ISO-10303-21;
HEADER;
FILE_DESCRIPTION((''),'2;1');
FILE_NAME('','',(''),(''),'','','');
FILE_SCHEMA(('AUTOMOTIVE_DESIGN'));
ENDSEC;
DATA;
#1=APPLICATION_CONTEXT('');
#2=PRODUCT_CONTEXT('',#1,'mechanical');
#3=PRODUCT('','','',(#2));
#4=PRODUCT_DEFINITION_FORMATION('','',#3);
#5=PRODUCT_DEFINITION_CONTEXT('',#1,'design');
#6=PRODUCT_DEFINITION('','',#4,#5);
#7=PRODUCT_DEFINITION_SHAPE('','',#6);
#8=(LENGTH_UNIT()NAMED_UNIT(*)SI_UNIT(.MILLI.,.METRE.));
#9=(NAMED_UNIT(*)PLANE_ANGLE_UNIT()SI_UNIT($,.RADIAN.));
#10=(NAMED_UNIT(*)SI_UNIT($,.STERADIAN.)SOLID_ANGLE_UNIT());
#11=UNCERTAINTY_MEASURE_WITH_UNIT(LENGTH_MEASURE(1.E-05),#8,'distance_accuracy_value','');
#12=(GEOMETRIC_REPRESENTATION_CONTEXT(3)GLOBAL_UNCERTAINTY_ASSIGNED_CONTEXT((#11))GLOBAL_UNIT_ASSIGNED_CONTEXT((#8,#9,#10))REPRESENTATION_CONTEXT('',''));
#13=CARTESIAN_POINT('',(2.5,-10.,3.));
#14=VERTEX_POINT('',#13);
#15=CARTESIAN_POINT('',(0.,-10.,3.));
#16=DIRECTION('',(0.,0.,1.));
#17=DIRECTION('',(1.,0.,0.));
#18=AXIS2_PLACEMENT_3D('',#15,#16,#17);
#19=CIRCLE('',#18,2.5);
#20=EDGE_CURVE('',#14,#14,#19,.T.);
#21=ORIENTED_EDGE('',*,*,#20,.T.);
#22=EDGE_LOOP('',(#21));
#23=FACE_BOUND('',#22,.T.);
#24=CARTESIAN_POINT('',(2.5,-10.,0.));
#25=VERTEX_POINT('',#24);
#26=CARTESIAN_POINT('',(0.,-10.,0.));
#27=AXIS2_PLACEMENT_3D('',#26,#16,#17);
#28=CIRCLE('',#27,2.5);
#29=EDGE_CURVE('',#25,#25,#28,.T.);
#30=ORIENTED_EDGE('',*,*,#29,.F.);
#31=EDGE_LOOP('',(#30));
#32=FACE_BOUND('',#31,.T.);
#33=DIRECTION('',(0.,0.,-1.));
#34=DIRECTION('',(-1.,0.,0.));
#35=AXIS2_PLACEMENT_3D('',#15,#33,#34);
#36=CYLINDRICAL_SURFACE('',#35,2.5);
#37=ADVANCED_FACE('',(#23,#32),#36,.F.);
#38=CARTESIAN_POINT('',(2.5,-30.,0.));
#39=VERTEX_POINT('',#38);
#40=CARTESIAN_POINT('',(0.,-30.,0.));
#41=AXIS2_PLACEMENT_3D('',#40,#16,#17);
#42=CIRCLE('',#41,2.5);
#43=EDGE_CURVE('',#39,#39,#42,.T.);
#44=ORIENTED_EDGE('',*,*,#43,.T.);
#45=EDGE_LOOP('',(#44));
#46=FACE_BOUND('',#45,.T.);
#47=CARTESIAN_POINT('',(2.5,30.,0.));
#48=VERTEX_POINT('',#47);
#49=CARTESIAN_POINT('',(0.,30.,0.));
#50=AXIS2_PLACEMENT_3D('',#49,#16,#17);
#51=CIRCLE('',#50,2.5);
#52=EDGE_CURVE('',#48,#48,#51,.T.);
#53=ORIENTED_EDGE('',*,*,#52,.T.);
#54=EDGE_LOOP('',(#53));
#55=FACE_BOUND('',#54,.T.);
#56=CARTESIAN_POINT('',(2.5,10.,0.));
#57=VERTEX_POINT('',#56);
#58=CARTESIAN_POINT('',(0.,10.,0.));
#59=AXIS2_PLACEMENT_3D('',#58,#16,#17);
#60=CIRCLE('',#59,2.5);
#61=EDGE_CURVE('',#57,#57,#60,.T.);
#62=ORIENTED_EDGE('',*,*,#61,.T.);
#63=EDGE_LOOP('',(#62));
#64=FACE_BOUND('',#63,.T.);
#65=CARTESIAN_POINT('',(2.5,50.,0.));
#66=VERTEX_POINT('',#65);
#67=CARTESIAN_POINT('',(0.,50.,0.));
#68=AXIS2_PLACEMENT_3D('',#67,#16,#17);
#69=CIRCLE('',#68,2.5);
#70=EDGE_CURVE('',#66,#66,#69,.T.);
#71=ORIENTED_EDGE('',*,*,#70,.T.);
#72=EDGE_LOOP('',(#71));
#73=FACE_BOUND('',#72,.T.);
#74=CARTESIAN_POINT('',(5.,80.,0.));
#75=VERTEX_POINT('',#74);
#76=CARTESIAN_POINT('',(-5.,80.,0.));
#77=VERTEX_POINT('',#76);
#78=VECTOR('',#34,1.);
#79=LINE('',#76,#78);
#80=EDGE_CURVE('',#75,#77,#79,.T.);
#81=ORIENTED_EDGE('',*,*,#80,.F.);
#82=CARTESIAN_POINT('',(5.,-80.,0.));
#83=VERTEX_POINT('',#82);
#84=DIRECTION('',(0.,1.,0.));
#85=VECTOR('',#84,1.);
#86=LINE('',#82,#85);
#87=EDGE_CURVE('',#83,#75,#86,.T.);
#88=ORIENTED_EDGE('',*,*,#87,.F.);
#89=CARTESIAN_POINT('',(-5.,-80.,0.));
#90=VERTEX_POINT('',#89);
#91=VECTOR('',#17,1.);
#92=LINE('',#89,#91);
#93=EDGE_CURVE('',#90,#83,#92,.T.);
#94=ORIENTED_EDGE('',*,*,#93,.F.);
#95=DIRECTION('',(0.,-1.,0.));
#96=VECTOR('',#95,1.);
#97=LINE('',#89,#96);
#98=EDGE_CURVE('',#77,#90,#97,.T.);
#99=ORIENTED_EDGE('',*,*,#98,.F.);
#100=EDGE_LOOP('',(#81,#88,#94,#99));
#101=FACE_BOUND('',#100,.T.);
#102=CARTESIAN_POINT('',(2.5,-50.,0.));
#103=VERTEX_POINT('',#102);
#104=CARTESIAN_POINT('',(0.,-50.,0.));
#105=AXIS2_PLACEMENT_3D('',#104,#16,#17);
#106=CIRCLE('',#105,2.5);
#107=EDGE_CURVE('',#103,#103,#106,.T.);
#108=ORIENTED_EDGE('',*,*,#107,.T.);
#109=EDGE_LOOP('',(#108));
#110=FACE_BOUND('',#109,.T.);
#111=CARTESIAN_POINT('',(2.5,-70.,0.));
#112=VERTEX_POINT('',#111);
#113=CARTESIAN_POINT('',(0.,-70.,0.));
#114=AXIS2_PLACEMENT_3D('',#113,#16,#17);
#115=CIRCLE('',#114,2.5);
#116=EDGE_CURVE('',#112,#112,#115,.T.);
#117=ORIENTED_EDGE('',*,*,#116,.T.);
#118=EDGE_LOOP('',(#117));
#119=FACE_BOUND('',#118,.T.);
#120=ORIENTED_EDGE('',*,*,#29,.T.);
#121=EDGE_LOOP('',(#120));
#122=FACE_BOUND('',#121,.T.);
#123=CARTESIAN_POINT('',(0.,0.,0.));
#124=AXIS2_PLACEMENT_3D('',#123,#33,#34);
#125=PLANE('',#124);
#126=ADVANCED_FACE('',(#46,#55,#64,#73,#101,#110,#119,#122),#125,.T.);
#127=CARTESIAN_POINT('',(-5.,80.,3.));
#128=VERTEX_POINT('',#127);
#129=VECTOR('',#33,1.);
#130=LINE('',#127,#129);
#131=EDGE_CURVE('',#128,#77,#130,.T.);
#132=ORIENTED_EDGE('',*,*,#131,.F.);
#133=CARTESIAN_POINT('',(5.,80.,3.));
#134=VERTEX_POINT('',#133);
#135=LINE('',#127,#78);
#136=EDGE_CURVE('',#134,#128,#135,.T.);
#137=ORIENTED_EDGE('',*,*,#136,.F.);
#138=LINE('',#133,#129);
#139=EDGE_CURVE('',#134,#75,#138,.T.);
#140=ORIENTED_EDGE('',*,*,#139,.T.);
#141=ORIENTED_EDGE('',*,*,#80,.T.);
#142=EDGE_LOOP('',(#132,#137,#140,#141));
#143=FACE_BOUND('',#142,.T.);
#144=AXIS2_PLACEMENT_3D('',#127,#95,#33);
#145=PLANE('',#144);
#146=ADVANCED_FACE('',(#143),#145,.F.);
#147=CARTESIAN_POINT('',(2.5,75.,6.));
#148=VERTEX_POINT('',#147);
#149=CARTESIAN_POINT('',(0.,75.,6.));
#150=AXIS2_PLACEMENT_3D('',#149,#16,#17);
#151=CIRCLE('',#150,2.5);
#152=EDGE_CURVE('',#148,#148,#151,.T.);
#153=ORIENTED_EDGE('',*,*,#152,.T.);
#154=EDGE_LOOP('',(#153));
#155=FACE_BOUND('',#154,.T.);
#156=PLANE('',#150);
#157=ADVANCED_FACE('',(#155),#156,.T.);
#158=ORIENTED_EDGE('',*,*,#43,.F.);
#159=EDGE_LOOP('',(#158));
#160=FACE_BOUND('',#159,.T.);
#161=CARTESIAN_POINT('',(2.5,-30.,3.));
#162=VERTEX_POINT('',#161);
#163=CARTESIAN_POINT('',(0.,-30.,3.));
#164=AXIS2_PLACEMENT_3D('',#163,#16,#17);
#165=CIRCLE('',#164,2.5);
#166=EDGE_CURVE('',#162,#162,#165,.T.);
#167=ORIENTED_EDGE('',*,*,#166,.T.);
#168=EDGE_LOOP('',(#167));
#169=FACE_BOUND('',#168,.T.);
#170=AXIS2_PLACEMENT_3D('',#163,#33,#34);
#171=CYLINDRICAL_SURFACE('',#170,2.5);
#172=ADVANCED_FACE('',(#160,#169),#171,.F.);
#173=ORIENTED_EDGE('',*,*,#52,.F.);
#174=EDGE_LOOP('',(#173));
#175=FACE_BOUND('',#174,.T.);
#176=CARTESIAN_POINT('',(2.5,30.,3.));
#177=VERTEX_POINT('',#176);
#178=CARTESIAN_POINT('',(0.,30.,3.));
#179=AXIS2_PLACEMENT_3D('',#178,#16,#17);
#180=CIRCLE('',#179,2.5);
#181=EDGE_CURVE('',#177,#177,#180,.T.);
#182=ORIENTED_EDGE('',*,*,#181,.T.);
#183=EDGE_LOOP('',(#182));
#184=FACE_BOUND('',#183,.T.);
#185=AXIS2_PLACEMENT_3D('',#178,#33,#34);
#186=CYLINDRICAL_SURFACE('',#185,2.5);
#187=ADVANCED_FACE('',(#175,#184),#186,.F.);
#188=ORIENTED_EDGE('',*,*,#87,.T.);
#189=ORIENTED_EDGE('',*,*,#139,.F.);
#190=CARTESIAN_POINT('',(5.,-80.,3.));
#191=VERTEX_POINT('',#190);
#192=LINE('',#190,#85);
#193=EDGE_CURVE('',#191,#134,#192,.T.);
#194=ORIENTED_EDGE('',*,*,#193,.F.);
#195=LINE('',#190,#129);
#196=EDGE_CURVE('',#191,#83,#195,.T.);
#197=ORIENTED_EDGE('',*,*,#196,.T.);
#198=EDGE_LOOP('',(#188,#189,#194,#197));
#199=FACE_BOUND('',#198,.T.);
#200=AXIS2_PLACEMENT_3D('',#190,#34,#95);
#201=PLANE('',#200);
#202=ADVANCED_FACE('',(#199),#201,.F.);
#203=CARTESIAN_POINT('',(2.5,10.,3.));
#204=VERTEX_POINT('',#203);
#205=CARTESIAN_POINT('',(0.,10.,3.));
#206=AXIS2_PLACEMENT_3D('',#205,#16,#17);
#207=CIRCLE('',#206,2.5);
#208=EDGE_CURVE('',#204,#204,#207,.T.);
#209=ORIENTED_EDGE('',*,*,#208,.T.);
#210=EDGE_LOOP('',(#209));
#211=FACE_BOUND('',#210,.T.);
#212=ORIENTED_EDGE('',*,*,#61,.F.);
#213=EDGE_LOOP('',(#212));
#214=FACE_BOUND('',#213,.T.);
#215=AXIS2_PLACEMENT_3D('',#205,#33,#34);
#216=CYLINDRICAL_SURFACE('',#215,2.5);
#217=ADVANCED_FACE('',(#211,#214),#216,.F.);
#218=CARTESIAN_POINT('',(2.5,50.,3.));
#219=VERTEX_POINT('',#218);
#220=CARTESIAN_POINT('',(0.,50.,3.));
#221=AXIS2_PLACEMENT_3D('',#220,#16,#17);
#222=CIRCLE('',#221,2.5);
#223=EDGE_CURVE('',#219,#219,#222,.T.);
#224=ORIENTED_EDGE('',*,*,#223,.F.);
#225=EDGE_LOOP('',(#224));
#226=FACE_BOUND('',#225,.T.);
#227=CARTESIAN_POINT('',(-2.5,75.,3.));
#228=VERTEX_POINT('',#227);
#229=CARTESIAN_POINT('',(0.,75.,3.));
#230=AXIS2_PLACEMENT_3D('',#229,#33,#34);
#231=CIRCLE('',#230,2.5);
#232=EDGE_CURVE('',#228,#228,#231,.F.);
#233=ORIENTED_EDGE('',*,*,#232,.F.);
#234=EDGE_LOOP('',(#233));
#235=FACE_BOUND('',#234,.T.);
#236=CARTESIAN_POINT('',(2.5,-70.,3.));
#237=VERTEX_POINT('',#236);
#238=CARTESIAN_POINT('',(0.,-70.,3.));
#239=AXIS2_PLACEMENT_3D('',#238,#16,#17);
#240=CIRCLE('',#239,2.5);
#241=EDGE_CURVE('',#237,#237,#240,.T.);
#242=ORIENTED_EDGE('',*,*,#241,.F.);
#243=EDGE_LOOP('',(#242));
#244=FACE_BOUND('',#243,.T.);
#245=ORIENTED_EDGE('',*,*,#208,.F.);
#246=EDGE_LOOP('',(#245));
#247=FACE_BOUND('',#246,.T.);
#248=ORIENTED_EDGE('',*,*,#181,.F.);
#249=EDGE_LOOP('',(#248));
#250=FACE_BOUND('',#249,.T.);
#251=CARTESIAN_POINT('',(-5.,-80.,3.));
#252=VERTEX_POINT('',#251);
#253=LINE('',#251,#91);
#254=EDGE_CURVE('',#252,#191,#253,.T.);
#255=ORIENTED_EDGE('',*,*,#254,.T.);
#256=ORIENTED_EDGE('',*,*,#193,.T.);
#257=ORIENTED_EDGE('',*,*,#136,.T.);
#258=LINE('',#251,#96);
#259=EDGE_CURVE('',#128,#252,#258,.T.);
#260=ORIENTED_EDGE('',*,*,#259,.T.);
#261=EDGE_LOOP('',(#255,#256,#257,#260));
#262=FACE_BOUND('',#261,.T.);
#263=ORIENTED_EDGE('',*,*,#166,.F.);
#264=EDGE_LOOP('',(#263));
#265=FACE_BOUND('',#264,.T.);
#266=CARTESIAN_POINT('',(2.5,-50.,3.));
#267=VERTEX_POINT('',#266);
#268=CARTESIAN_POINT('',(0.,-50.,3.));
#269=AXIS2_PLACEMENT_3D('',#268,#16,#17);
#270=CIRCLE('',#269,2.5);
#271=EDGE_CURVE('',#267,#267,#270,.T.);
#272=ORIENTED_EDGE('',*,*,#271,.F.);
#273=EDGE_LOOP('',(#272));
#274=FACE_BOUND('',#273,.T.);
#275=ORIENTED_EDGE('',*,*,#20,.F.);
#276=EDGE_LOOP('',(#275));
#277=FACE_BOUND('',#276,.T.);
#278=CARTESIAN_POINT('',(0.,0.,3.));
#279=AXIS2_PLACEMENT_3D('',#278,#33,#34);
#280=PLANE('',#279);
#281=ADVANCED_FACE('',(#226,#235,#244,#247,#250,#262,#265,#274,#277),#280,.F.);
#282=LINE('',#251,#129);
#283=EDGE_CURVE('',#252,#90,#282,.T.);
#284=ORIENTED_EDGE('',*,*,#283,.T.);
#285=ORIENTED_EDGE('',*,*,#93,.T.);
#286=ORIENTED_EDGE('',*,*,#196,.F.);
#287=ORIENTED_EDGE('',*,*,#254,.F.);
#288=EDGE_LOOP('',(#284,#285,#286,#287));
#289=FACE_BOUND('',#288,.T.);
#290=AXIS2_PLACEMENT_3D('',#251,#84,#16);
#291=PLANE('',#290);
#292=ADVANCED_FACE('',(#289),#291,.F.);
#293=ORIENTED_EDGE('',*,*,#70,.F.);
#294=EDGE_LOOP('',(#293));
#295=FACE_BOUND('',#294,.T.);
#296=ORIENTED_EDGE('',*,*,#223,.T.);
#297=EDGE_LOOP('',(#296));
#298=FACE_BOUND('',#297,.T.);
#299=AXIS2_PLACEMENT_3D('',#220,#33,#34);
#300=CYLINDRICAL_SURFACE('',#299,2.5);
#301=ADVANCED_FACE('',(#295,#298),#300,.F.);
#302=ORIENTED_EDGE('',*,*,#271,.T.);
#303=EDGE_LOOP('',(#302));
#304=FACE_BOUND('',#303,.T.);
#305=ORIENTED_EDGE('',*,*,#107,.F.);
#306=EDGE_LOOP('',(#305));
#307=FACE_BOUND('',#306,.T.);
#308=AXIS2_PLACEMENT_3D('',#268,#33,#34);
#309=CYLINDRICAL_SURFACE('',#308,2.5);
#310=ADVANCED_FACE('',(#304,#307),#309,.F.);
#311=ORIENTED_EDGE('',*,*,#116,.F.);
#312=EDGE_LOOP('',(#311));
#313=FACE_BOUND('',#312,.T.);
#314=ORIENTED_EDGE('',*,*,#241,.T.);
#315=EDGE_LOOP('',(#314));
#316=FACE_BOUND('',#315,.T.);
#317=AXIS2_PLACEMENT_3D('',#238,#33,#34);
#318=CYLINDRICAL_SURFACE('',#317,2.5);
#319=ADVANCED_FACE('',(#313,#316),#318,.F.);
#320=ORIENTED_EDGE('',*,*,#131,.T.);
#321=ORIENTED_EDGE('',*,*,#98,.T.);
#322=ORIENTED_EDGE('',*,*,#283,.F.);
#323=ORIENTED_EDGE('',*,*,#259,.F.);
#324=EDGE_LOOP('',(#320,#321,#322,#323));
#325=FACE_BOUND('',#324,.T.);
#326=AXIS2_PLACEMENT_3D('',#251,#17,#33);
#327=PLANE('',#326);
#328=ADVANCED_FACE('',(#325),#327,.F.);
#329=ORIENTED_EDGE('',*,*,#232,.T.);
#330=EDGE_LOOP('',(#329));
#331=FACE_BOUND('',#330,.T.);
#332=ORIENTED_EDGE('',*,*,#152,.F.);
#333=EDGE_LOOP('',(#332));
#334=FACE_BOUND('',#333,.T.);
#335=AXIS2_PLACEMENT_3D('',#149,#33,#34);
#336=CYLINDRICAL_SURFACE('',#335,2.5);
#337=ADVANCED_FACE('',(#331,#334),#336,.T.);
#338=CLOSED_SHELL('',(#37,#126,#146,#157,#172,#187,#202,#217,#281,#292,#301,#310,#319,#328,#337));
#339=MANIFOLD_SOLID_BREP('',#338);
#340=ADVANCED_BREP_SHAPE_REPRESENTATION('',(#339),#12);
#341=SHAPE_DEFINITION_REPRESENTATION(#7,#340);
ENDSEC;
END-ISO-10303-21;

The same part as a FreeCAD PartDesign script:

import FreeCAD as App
import Part
import Sketcher

doc = App.newDocument("Part")
params = doc.addObject("Spreadsheet::Sheet", "Params")
for row, (alias, value) in enumerate([
    ("sketch1_diameter", "5 mm"),
    ("sketch1_width", "10 mm"),
    ("sketch1_height", "160 mm"),
    ("pad1_length", "3 mm"),
    ("sketch2_diameter", "5 mm"),
    ("pad2_length", "3 mm"),
], start=1):
    params.set(f"A{row}", alias)
    params.set(f"B{row}", "=" + value)
    params.setAlias(f"B{row}", alias)

body = doc.addObject("PartDesign::Body", "Body")

# Sketch on XY plane
sketch1 = body.newObject("Sketcher::SketchObject", "Sketch")
sketch1.AttachmentSupport = (doc.getObject("XY_Plane"), [""])
sketch1.MapMode = "FlatFace"
sketch1.addGeometry(Part.LineSegment(App.Vector(-5, 80, 0), App.Vector(-5, -80, 0)), False)
sketch1.addGeometry(Part.LineSegment(App.Vector(-5, -80, 0), App.Vector(5, -80, 0)), False)
sketch1.addGeometry(Part.LineSegment(App.Vector(5, -80, 0), App.Vector(5, 80, 0)), False)
sketch1.addGeometry(Part.LineSegment(App.Vector(5, 80, 0), App.Vector(-5, 80, 0)), False)
sketch1.addGeometry(Part.Circle(App.Vector(0, -70, 0), App.Vector(0, 0, 1), 2.5), False)
sketch1.addGeometry(Part.Circle(App.Vector(0, -50, 0), App.Vector(0, 0, 1), 2.5), False)
sketch1.addGeometry(Part.Circle(App.Vector(0, -30, 0), App.Vector(0, 0, 1), 2.5), False)
sketch1.addGeometry(Part.Circle(App.Vector(0, -10, 0), App.Vector(0, 0, 1), 2.5), False)
sketch1.addGeometry(Part.Circle(App.Vector(0, 10, 0), App.Vector(0, 0, 1), 2.5), False)
sketch1.addGeometry(Part.Circle(App.Vector(0, 30, 0), App.Vector(0, 0, 1), 2.5), False)
sketch1.addGeometry(Part.Circle(App.Vector(0, 50, 0), App.Vector(0, 0, 1), 2.5), False)
sketch1.addConstraint(Sketcher.Constraint("Coincident", 0, 2, 1, 1))
sketch1.addConstraint(Sketcher.Constraint("Coincident", 1, 2, 2, 1))
sketch1.addConstraint(Sketcher.Constraint("Coincident", 2, 2, 3, 1))
sketch1.addConstraint(Sketcher.Constraint("Coincident", 3, 2, 0, 1))
sketch1.addConstraint(Sketcher.Constraint("Vertical", 0))
sketch1.addConstraint(Sketcher.Constraint("Horizontal", 1))
sketch1.addConstraint(Sketcher.Constraint("Vertical", 2))
sketch1.addConstraint(Sketcher.Constraint("Horizontal", 3))
sketch1.addConstraint(Sketcher.Constraint("Equal", 4, 5))
sketch1.addConstraint(Sketcher.Constraint("Equal", 5, 6))
sketch1.addConstraint(Sketcher.Constraint("Equal", 6, 7))
sketch1.addConstraint(Sketcher.Constraint("Equal", 7, 8))
sketch1.addConstraint(Sketcher.Constraint("Equal", 8, 9))
sketch1.addConstraint(Sketcher.Constraint("Equal", 9, 10))
sketch1.addConstraint(Sketcher.Constraint("Symmetric", 7, 3, 8, 3, -1, 1))
sketch1.addConstraint(Sketcher.Constraint("Symmetric", 6, 3, 9, 3, -1, 1))
sketch1.addConstraint(Sketcher.Constraint("Symmetric", 5, 3, 10, 3, -1, 1))
sketch1.addConstraint(Sketcher.Constraint("Symmetric", 0, 2, 2, 2, -1, 1))
sketch1.addConstraint(Sketcher.Constraint("PointOnObject", 4, 3, -2))
sketch1.addConstraint(Sketcher.Constraint("PointOnObject", 5, 3, -2))
sketch1.addConstraint(Sketcher.Constraint("PointOnObject", 6, 3, -2))
sketch1.addConstraint(Sketcher.Constraint("PointOnObject", 7, 3, -2))
sketch1.addConstraint(Sketcher.Constraint("Diameter", 4, 5.0))
sketch1.addConstraint(Sketcher.Constraint("DistanceX", 1, 1, 1, 2, 10.0))
sketch1.addConstraint(Sketcher.Constraint("DistanceY", 0, 2, 0, 1, 160.0))
sketch1.addConstraint(Sketcher.Constraint("DistanceY", 4, 3, -1, 1, 70.0))
sketch1.addConstraint(Sketcher.Constraint("DistanceY", 5, 3, -1, 1, 50.0))
sketch1.addConstraint(Sketcher.Constraint("DistanceY", 6, 3, -1, 1, 30.0))
sketch1.addConstraint(Sketcher.Constraint("DistanceY", 7, 3, -1, 1, 10.0))
sketch1.setExpression("Constraints[22]", "Params.sketch1_diameter")
sketch1.setExpression("Constraints[23]", "Params.sketch1_width")
sketch1.setExpression("Constraints[24]", "Params.sketch1_height")
pad1 = body.newObject("PartDesign::Pad", "Pad")
pad1.Profile = sketch1
pad1.setExpression("Length", "Params.pad1_length")

# Sketch on XY plane
sketch2 = body.newObject("Sketcher::SketchObject", "Sketch001")
sketch2.AttachmentSupport = (doc.getObject("XY_Plane"), [""])
sketch2.MapMode = "FlatFace"
sketch2.AttachmentOffset = App.Placement(App.Vector(0, 0, 3), App.Rotation())
sketch2.addGeometry(Part.Circle(App.Vector(0, 75, 0), App.Vector(0, 0, 1), 2.5), False)
sketch2.addConstraint(Sketcher.Constraint("PointOnObject", 0, 3, -2))
sketch2.addConstraint(Sketcher.Constraint("Diameter", 0, 5.0))
sketch2.addConstraint(Sketcher.Constraint("DistanceY", -1, 1, 0, 3, 75.0))
sketch2.setExpression("Constraints[1]", "Params.sketch2_diameter")
pad2 = body.newObject("PartDesign::Pad", "Pad001")
pad2.Profile = sketch2
pad2.setExpression("Length", "Params.pad2_length")

doc.recompute()
